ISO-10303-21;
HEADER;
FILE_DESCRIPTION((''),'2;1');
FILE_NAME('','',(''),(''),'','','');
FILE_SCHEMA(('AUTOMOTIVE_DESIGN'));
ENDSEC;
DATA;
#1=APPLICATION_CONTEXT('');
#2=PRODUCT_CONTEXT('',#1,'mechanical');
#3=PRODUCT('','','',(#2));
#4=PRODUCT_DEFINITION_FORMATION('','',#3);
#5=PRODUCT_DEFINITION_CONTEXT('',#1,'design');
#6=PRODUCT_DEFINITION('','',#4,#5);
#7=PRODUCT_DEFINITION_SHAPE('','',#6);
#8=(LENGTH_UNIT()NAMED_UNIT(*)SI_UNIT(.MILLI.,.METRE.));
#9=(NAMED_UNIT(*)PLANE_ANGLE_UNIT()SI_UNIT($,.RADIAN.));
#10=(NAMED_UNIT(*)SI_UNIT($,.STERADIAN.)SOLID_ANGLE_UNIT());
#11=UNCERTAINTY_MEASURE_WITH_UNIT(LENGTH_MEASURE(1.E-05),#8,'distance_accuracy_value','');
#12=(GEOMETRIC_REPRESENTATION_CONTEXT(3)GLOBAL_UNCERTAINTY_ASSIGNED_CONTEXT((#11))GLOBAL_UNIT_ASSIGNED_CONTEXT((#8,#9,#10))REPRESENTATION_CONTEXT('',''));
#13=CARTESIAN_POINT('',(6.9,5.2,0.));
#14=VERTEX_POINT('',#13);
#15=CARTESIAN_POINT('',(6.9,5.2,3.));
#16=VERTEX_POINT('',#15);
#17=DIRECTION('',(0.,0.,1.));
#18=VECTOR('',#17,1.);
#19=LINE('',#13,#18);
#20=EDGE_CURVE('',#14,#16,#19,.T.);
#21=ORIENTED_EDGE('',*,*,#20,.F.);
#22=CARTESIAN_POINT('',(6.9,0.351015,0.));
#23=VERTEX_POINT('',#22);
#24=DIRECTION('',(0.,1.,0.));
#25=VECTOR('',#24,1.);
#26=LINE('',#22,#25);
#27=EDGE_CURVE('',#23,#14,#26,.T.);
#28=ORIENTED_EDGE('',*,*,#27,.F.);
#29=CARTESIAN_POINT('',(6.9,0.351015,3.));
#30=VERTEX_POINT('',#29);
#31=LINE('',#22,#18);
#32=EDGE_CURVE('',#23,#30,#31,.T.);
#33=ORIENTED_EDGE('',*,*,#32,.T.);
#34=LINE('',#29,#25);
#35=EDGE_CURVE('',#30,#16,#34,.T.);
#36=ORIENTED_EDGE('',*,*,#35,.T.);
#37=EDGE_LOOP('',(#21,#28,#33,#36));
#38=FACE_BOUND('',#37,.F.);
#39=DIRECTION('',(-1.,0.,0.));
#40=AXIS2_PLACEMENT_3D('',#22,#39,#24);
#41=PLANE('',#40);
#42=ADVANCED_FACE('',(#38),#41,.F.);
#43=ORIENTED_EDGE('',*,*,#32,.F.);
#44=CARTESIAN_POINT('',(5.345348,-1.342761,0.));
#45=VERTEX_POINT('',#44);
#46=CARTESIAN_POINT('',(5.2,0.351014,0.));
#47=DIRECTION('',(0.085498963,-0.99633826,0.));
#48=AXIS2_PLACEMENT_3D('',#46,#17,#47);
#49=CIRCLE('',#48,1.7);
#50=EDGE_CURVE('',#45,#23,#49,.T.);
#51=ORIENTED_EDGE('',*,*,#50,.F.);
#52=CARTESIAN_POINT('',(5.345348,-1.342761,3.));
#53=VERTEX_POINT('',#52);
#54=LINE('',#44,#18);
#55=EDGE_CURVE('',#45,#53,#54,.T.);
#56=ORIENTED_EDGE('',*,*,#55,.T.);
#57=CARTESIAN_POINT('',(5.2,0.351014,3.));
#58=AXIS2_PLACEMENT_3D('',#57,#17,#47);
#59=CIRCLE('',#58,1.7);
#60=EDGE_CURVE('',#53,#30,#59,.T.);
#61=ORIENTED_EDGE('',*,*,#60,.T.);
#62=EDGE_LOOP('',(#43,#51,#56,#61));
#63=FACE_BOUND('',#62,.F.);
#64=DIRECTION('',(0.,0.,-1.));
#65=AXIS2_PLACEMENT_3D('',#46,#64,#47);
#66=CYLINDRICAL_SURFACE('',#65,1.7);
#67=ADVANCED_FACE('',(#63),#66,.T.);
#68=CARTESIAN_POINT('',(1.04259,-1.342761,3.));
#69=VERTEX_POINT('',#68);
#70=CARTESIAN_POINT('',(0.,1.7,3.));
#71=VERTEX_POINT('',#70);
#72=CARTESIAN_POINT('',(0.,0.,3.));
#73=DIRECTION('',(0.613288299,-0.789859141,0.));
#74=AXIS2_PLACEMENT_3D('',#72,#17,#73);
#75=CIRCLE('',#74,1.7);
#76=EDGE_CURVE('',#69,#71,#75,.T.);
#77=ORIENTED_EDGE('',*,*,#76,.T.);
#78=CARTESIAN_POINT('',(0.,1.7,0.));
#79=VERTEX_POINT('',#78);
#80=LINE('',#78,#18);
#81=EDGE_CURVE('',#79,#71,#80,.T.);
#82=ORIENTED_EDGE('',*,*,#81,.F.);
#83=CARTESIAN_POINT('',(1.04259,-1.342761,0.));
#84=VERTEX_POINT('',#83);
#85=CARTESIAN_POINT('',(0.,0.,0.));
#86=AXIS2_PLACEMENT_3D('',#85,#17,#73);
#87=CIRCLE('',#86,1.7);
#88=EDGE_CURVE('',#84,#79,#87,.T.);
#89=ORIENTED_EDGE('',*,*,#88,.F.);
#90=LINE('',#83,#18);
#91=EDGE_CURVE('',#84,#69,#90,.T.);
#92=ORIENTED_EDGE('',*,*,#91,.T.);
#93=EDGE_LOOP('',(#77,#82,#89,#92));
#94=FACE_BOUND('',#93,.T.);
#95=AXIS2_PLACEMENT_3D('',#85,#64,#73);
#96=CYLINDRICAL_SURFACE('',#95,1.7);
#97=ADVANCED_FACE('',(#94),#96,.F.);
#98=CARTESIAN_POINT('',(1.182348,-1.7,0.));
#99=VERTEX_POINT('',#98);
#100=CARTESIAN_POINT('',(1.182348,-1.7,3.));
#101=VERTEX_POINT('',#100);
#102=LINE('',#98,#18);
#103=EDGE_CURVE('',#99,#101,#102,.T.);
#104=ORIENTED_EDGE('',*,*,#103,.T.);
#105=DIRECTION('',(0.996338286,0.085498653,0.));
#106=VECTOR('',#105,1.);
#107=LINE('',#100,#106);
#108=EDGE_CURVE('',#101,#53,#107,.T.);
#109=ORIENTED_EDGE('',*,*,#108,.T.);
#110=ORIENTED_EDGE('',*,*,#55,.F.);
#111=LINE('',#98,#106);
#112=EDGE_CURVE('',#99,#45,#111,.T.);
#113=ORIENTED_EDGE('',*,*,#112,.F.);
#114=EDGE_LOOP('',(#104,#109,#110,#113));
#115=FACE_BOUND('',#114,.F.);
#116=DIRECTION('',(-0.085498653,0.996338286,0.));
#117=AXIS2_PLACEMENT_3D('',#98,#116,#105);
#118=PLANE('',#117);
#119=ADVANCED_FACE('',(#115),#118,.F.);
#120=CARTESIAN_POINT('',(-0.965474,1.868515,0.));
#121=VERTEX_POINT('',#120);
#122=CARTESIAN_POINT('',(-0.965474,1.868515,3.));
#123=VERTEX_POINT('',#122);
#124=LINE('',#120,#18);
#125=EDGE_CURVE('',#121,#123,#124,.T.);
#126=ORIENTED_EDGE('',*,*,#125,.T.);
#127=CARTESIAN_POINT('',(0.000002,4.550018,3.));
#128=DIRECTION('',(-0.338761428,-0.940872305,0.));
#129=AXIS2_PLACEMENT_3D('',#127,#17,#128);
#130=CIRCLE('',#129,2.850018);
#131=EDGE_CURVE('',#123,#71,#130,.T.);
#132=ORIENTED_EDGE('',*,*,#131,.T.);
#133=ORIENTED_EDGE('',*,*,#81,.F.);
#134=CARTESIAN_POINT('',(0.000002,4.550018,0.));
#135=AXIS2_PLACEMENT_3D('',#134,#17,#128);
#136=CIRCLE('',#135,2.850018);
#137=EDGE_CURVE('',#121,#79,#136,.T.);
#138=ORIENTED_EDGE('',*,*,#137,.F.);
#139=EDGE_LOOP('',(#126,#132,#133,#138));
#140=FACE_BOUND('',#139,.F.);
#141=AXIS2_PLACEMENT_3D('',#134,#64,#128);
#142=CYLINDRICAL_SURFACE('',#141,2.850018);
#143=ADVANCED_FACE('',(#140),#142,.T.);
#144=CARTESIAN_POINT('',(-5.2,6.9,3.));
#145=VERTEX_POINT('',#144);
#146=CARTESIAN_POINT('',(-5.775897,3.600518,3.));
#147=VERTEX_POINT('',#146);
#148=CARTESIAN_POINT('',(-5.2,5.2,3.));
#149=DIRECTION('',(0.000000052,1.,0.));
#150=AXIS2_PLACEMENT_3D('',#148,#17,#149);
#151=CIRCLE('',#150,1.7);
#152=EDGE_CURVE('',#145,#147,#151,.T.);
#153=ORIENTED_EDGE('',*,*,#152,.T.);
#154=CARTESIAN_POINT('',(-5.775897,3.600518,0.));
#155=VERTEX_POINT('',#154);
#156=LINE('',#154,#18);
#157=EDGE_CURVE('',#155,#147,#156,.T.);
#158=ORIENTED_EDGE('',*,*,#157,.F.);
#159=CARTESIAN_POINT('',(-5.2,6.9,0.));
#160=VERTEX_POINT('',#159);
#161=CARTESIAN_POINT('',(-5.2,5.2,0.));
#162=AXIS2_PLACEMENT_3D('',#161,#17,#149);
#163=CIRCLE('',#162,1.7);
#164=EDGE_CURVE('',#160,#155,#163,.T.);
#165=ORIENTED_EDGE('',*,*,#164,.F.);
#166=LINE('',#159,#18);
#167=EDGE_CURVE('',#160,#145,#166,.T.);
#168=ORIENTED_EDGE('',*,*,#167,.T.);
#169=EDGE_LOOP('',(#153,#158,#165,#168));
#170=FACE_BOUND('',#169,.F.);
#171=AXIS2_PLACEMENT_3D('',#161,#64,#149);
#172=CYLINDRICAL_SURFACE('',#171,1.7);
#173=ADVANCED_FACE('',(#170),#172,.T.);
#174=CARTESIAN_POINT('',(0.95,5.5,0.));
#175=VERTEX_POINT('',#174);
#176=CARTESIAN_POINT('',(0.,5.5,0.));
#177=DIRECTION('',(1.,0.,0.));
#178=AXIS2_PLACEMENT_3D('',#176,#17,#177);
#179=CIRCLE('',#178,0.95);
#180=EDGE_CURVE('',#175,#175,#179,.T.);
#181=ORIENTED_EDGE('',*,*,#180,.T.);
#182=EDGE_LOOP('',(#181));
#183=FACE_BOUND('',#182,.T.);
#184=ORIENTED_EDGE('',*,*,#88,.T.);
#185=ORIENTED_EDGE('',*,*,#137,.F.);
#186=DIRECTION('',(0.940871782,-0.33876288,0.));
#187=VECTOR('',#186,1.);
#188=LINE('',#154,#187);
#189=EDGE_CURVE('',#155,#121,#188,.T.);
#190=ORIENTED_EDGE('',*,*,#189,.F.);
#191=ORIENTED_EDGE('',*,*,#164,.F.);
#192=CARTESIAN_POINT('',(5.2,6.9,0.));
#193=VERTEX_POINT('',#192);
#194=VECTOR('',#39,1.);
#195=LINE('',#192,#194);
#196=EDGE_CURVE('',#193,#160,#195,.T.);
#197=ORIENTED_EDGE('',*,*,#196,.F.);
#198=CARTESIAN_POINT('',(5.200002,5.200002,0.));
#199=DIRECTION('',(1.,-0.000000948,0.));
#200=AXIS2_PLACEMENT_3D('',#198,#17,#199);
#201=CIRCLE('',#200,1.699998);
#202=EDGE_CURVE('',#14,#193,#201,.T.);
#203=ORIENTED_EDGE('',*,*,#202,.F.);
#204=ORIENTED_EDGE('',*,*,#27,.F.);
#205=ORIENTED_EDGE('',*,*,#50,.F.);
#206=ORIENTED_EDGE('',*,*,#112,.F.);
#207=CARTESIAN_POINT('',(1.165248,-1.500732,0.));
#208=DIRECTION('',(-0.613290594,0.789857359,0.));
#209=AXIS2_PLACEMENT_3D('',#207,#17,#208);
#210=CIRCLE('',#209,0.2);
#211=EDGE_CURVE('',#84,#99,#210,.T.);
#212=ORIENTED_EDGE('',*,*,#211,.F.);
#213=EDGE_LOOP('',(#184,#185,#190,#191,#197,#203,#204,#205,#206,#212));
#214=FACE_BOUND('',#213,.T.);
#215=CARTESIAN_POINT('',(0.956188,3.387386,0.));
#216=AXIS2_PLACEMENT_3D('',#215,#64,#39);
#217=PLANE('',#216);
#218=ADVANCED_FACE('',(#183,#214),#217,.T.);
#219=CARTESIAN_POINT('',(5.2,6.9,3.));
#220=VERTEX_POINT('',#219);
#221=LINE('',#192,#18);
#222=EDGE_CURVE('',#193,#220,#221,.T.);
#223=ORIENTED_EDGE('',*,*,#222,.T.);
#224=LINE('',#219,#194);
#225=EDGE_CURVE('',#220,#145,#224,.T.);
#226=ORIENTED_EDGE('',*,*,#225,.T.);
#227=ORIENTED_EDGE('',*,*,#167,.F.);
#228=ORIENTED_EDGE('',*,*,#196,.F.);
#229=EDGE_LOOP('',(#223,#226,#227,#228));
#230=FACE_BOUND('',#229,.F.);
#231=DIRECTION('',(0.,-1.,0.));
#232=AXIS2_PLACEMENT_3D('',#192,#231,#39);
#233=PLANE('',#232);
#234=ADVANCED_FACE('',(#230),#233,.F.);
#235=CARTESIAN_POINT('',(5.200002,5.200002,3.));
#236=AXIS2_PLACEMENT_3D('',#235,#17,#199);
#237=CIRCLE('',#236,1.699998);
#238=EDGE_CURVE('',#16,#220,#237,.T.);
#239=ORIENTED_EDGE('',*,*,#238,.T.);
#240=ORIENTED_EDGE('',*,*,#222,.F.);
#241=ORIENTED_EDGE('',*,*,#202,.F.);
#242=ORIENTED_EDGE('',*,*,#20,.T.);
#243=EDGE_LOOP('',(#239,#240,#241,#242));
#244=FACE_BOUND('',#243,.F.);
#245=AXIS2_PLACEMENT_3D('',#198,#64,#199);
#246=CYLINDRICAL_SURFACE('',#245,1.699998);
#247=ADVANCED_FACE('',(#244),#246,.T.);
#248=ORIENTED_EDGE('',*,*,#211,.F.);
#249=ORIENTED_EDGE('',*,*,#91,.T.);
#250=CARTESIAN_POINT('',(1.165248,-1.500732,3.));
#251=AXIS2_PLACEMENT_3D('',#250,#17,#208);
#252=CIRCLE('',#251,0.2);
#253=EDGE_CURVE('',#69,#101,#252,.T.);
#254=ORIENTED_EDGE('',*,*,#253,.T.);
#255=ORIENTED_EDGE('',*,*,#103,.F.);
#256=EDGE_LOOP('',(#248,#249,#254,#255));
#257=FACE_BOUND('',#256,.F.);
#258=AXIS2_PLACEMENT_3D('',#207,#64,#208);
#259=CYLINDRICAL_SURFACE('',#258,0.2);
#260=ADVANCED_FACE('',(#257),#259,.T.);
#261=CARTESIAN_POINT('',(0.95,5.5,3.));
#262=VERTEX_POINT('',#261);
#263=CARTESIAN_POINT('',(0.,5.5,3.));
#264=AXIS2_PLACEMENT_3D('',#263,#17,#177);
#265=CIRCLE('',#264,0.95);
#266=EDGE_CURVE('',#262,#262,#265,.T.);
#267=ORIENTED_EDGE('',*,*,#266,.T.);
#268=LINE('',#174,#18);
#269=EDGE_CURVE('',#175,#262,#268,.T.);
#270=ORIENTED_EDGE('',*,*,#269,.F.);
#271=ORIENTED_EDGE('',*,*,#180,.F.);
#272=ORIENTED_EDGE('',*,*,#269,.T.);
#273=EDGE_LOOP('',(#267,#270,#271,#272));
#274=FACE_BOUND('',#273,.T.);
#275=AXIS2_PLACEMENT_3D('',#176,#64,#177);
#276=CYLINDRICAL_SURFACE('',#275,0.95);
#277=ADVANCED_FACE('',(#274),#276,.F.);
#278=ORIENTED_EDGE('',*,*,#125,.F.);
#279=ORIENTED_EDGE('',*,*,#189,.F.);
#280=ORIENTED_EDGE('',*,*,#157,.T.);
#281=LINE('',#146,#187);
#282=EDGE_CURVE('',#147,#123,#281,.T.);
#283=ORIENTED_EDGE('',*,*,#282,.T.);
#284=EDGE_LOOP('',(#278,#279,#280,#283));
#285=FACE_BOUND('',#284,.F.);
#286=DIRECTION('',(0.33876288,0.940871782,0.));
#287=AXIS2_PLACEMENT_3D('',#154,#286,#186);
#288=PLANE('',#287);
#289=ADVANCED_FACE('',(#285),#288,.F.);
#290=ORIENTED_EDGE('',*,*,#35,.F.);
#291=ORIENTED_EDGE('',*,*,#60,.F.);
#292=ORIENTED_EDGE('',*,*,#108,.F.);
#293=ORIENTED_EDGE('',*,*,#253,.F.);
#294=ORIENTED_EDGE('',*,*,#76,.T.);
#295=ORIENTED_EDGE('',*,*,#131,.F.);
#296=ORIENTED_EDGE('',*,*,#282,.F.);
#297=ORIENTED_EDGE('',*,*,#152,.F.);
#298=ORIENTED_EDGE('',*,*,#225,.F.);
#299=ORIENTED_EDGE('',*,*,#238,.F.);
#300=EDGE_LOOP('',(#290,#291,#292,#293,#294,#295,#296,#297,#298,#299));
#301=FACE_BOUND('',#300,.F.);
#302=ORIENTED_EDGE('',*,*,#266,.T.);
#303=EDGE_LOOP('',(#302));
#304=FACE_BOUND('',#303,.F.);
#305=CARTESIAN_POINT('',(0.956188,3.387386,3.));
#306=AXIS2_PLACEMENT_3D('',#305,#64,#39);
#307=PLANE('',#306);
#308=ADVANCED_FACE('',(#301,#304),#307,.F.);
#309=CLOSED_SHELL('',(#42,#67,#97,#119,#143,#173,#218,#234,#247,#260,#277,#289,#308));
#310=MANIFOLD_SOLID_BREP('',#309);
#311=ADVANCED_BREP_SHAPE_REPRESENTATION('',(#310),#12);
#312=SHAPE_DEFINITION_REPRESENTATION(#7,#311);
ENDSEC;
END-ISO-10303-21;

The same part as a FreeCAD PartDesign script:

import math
import FreeCAD as App
import Part
import Sketcher

V = App.Vector

doc = App.newDocument("Part")
body = doc.addObject("PartDesign::Body", "Body")

# Sketch on XY plane
sketch1 = body.newObject("Sketcher::SketchObject", "Sketch")
sketch1.AttachmentSupport = (doc.getObject("XY_Plane"), [""])
sketch1.MapMode = "FlatFace"
sketch1.addGeometry([
    Part.ArcOfCircle(Part.Circle(V(0, 0, 0), V(0, 0, 1), 1.7), math.radians(-52.17235), math.radians(89.999991)),  # 0
    Part.ArcOfCircle(Part.Circle(V(1.165248, -1.500732, 0), V(0, 0, 1), 0.2), math.radians(127.827817), math.radians(274.904756)),  # 1
    Part.LineSegment(V(1.182348, -1.7, 0), V(5.345348, -1.342761, 0)),  # 2
    Part.ArcOfCircle(Part.Circle(V(5.2, 0.351014, 0), V(0, 0, 1), 1.7), math.radians(-85.095282), math.radians(0.000024)),  # 3
    Part.LineSegment(V(6.9, 0.351015, 0), V(6.9, 5.2, 0)),  # 4
    Part.ArcOfCircle(Part.Circle(V(5.200002, 5.200002, 0), V(0, 0, 1), 1.699998), math.radians(-0.000054), math.radians(90.000054)),  # 5
    Part.LineSegment(V(5.2, 6.9, 0), V(-5.2, 6.9, 0)),  # 6
    Part.ArcOfCircle(Part.Circle(V(-5.2, 5.2, 0), V(0, 0, 1), 1.7), math.radians(89.999997), math.radians(250.198479)),  # 7
    Part.LineSegment(V(-5.775897, 3.600518, 0), V(-0.965474, 1.868515, 0)),  # 8
    Part.ArcOfCircle(Part.Circle(V(0.000002, 4.550018, 0), V(0, 0, 1), 2.850018), math.radians(-109.801432), math.radians(-90.000044)),  # 9
    Part.Circle(V(0, 5.5, 0), V(0, 0, 1), 0.95),  # 10
], False)
sketch1.addConstraint([
    Sketcher.Constraint("Coincident", 0, 1, 1, 1),
    Sketcher.Constraint("Tangent", 1, 2, 2, 1),
    Sketcher.Constraint("Tangent", 2, 2, 3, 1),
    Sketcher.Constraint("Tangent", 3, 2, 4, 1),
    Sketcher.Constraint("Tangent", 4, 2, 5, 1),
    Sketcher.Constraint("Tangent", 5, 2, 6, 1),
    Sketcher.Constraint("Tangent", 6, 2, 7, 1),
    Sketcher.Constraint("Tangent", 7, 2, 8, 1),
    Sketcher.Constraint("Tangent", 8, 2, 9, 1),
    Sketcher.Constraint("Tangent", 9, 2, 0, 2),
    Sketcher.Constraint("Vertical", 4),
    Sketcher.Constraint("Horizontal", 6),
    Sketcher.Constraint("Coincident", 0, 3, -1, 1),
    Sketcher.Constraint("Equal", 0, 3),
    Sketcher.Constraint("Equal", 3, 5),
    Sketcher.Constraint("Equal", 5, 7),
    Sketcher.Constraint("PointOnObject", 10, 3, -2),
    Sketcher.Constraint("PointOnObject", 9, 2, -2),
    Sketcher.Constraint("Horizontal", 0, 1, 2, 2),
    Sketcher.Constraint("Diameter", 10, 1.9),
    Sketcher.Constraint("Radius", 0, 1.7),
    Sketcher.Constraint("Radius", 1, 0.2),
    Sketcher.Constraint("DistanceX", 6, 2, 6, 1, 10.4),
    Sketcher.Constraint("DistanceX", -1, 1, 3, 3, 5.2),
    Sketcher.Constraint("DistanceY", -1, 1, 5, 3, 5.200002),
    Sketcher.Constraint("DistanceY", -1, 1, 10, 3, 5.5),
    Sketcher.Constraint("DistanceY", 1, 2, -1, 1, 1.7),
    Sketcher.Constraint("Radius", 9, 2.850018),
    Sketcher.Constraint("DistanceX", 1, 2, 2, 2, 4.163),
])
pad1 = body.newObject("PartDesign::Pad", "Pad")
pad1.Profile = sketch1
pad1.Length = 3

doc.recompute()
